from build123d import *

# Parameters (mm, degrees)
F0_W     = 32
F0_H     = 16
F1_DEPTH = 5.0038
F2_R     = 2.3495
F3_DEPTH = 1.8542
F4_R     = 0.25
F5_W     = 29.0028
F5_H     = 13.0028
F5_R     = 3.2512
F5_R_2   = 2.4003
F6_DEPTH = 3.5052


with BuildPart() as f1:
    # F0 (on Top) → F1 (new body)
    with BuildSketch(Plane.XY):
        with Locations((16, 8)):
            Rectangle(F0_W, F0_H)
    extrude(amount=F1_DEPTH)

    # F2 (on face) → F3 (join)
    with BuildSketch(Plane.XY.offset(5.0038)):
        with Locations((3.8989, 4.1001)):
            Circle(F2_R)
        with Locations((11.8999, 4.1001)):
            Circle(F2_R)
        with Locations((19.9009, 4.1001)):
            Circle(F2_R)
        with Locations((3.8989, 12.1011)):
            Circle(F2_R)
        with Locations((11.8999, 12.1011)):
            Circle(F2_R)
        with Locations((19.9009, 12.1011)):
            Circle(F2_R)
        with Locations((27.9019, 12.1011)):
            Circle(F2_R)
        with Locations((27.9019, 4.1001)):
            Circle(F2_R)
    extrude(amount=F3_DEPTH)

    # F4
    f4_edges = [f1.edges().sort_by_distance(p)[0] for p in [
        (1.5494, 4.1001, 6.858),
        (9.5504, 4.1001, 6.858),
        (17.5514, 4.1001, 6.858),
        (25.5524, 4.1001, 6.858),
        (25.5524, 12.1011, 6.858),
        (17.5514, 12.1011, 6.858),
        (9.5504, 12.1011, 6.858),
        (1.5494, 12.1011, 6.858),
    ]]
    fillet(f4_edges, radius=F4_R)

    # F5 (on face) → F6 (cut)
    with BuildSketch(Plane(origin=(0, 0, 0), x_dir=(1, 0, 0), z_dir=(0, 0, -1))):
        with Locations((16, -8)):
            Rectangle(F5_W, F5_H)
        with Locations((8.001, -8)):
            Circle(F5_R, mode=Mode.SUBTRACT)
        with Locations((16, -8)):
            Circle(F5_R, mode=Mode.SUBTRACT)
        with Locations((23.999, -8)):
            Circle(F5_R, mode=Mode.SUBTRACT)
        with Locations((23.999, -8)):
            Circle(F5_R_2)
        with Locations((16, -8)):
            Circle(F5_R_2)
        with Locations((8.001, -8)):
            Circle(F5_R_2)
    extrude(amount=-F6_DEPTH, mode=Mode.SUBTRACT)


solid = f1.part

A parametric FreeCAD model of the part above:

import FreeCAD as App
import Part
import Sketcher
from FreeCAD import Vector
Q = App.Units.Quantity


def edges_at(feature, points):
    """Names of the edges that pass closest to the given points."""
    edges = feature.Shape.Edges
    near = lambda p: min(range(len(edges)), key=lambda i: edges[i].distToShape(Part.Vertex(*p))[0])
    return sorted({f"Edge{near(p) + 1}" for p in points})

doc = App.newDocument("Part")
body = doc.addObject("PartDesign::Body", "Body")

# Sketch on XY plane
sketch1 = body.newObject("Sketcher::SketchObject", "Sketch")
sketch1.AttachmentSupport = (doc.getObject("XY_Plane"), [""])
sketch1.MapMode = "FlatFace"
sketch1.addGeometry([
    Part.LineSegment(Vector(0, 16, 0), Vector(0, 0, 0)),
    Part.LineSegment(Vector(0, 0, 0), Vector(32, 0, 0)),
    Part.LineSegment(Vector(32, 0, 0), Vector(32, 16, 0)),
    Part.LineSegment(Vector(32, 16, 0), Vector(0, 16, 0)),
], False)
sketch1.addConstraint([
    Sketcher.Constraint("Coincident", 0, 2, 1, 1),
    Sketcher.Constraint("Coincident", 1, 2, 2, 1),
    Sketcher.Constraint("Coincident", 2, 2, 3, 1),
    Sketcher.Constraint("Coincident", 3, 2, 0, 1),
    Sketcher.Constraint("Vertical", 0),
    Sketcher.Constraint("Horizontal", 1),
    Sketcher.Constraint("Vertical", 2),
    Sketcher.Constraint("Horizontal", 3),
    Sketcher.Constraint("Coincident", 0, 2, -1, 1),
    Sketcher.Constraint("DistanceX", 1, 1, 1, 2, 32.0),
    Sketcher.Constraint("DistanceY", 0, 2, 0, 1, 16.0),
])
pad1 = body.newObject("PartDesign::Pad", "Pad")
pad1.Profile = sketch1
pad1.Length = Q("0.197 in")

# Sketch on XY plane
sketch2 = body.newObject("Sketcher::SketchObject", "Sketch001")
sketch2.AttachmentSupport = (doc.getObject("XY_Plane"), [""])
sketch2.MapMode = "FlatFace"
sketch2.AttachmentOffset = App.Placement(Vector(0, 0, 0.197 * 25.4), App.Rotation())
sketch2.addGeometry([
    Part.Circle(Vector(3.9, 4.1, 0), Vector(0, 0, 1), 2.3),  # 0
    Part.Circle(Vector(11.9, 4.1, 0), Vector(0, 0, 1), 2.3),  # 1
    Part.Circle(Vector(19.9, 4.1, 0), Vector(0, 0, 1), 2.3),  # 2
    Part.Circle(Vector(3.9, 12.1, 0), Vector(0, 0, 1), 2.3),  # 3
    Part.Circle(Vector(11.9, 12.1, 0), Vector(0, 0, 1), 2.3),  # 4
    Part.Circle(Vector(19.9, 12.1, 0), Vector(0, 0, 1), 2.3),  # 5
    Part.Circle(Vector(27.9, 12.1, 0), Vector(0, 0, 1), 2.3),  # 6
    Part.Circle(Vector(27.9, 4.1, 0), Vector(0, 0, 1), 2.3),  # 7
], False)
sketch2.addConstraint([
    Sketcher.Constraint("Equal", 0, 1),
    Sketcher.Constraint("Equal", 1, 2),
    Sketcher.Constraint("Equal", 2, 3),
    Sketcher.Constraint("Equal", 3, 4),
    Sketcher.Constraint("Equal", 4, 5),
    Sketcher.Constraint("Equal", 5, 6),
    Sketcher.Constraint("Equal", 6, 7),
    Sketcher.Constraint("Horizontal", 0, 3, 1, 3),
    Sketcher.Constraint("Horizontal", 1, 3, 2, 3),
    Sketcher.Constraint("Horizontal", 3, 3, 4, 3),
    Sketcher.Constraint("Horizontal", 4, 3, 5, 3),
    Sketcher.Constraint("Horizontal", 5, 3, 6, 3),
    Sketcher.Constraint("Horizontal", 2, 3, 7, 3),
    Sketcher.Constraint("Vertical", 0, 3, 3, 3),
    Sketcher.Constraint("Vertical", 1, 3, 4, 3),
    Sketcher.Constraint("Vertical", 2, 3, 5, 3),
    Sketcher.Constraint("Vertical", 6, 3, 7, 3),
    Sketcher.Constraint("Diameter", 0, Q("0.185 in")),
    Sketcher.Constraint("DistanceX", 0, 3, 2, 3, Q("0.63 in")),
    Sketcher.Constraint("DistanceX", 4, 3, 6, 3, Q("0.63 in")),
    Sketcher.Constraint("DistanceX", 0, 3, 1, 3, Q("0.315 in")),
    Sketcher.Constraint("DistanceY", 0, 3, 3, 3, Q("0.315 in")),
    Sketcher.Constraint("DistanceX", -1, 1, 0, 3, Q("0.1535 in")),
    Sketcher.Constraint("DistanceY", -1, 1, 0, 3, 4.1001),
])
pad2 = body.newObject("PartDesign::Pad", "Pad001")
pad2.Profile = sketch2
pad2.Length = Q("0.073 in")
doc.recompute()

fillet = body.newObject("PartDesign::Fillet", "Fillet")
fillet.Base = (pad2, edges_at(pad2, [
    (1.549, 4.1, 6.858),
    (9.55, 4.1, 6.858),
    (17.551, 4.1, 6.858),
    (25.552, 4.1, 6.858),
    (25.552, 12.101, 6.858),
    (17.551, 12.101, 6.858),
    (9.55, 12.101, 6.858),
    (1.549, 12.101, 6.858),
]))
fillet.Radius = 0.25

# Sketch on XY plane
sketch3 = body.newObject("Sketcher::SketchObject", "Sketch002")
sketch3.AttachmentSupport = (doc.getObject("XY_Plane"), [""])
sketch3.MapMode = "FlatFace"
sketch3.addGeometry([
    Part.LineSegment(Vector(1.5, 1.5, 0), Vector(1.5, 14.5, 0)),  # 0
    Part.LineSegment(Vector(1.5, 14.5, 0), Vector(30.5, 14.5, 0)),  # 1
    Part.LineSegment(Vector(30.5, 14.5, 0), Vector(30.5, 1.5, 0)),  # 2
    Part.LineSegment(Vector(30.5, 1.5, 0), Vector(1.5, 1.5, 0)),  # 3
    Part.Circle(Vector(8, 8, 0), Vector(0, 0, 1), 3.3),  # 4
    Part.Circle(Vector(16, 8, 0), Vector(0, 0, 1), 3.3),  # 5
    Part.Circle(Vector(24, 8, 0), Vector(0, 0, 1), 3.3),  # 6
    Part.Circle(Vector(24, 8, 0), Vector(0, 0, 1), 2.4),  # 7
    Part.Circle(Vector(16, 8, 0), Vector(0, 0, 1), 2.4),  # 8
    Part.Circle(Vector(8, 8, 0), Vector(0, 0, 1), 2.4),  # 9
], False)
sketch3.addConstraint([
    Sketcher.Constraint("Coincident", 0, 2, 1, 1),
    Sketcher.Constraint("Coincident", 1, 2, 2, 1),
    Sketcher.Constraint("Coincident", 2, 2, 3, 1),
    Sketcher.Constraint("Coincident", 3, 2, 0, 1),
    Sketcher.Constraint("Vertical", 0),
    Sketcher.Constraint("Horizontal", 1),
    Sketcher.Constraint("Vertical", 2),
    Sketcher.Constraint("Horizontal", 3),
    Sketcher.Constraint("Coincident", 7, 3, 6, 3),
    Sketcher.Constraint("Coincident", 8, 3, 5, 3),
    Sketcher.Constraint("Coincident", 9, 3, 4, 3),
    Sketcher.Constraint("Equal", 4, 5),
    Sketcher.Constraint("Equal", 5, 6),
    Sketcher.Constraint("Equal", 7, 8),
    Sketcher.Constraint("Equal", 8, 9),
    Sketcher.Constraint("Horizontal", 4, 3, 5, 3),
    Sketcher.Constraint("Horizontal", 5, 3, 6, 3),
    Sketcher.Constraint("Diameter", 4, Q("0.256 in")),
    Sketcher.Constraint("Diameter", 7, Q("0.189 in")),
    Sketcher.Constraint("DistanceX", -1, 1, 4, 3, Q("0.315 in")),
    Sketcher.Constraint("DistanceX", -1, 1, 0, 2, Q("0.059 in")),
    Sketcher.Constraint("DistanceY", -1, 1, 2, 2, Q("0.059 in")),
    Sketcher.Constraint("DistanceX", 6, 3, 1, 2, Q("0.256 in")),
    Sketcher.Constraint("DistanceX", 1, 1, 1, 2, 29.0028),
    Sketcher.Constraint("DistanceY", 0, 1, 0, 2, 13.0028),
    Sketcher.Constraint("DistanceY", -1, 1, 4, 3, 8.0),
    Sketcher.Constraint("DistanceX", -1, 1, 5, 3, 16.0),
])
pocket1 = body.newObject("PartDesign::Pocket", "Pocket")
pocket1.Profile = sketch3
pocket1.Length = Q("0.138 in")
pocket1.Reversed = True

doc.recompute()
